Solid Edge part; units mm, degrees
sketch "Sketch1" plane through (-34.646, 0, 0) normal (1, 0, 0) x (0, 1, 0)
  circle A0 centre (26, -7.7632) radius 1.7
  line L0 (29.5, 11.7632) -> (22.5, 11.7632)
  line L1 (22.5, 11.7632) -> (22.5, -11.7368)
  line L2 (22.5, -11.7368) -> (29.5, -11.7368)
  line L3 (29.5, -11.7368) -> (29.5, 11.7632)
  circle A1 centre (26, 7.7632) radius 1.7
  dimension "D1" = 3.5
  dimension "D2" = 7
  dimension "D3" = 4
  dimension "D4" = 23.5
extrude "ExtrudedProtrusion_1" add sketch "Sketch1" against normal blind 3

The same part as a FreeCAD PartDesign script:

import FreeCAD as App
import Part
import Sketcher
from FreeCAD import Vector
Q = App.Units.Quantity

doc = App.newDocument("Part")
body = doc.addObject("PartDesign::Body", "Body")

# Sketch on YZ plane
sketch1 = body.newObject("Sketcher::SketchObject", "Sketch")
sketch1.AttachmentSupport = (doc.getObject("YZ_Plane"), [""])
sketch1.MapMode = "FlatFace"
sketch1.AttachmentOffset = App.Placement(Vector(0, 0, -34.646), App.Rotation())
sketch1.addGeometry([
    Part.LineSegment(Vector(29.5, -11.7, 0), Vector(29.5, 11.8, 0)),  # 0
    Part.LineSegment(Vector(29.5, 11.8, 0), Vector(22.5, 11.8, 0)),  # 1
    Part.LineSegment(Vector(22.5, 11.8, 0), Vector(22.5, -11.7, 0)),  # 2
    Part.LineSegment(Vector(22.5, -11.7, 0), Vector(29.5, -11.7, 0)),  # 3
    Part.Circle(Vector(26, -7.8, 0), Vector(0, 0, 1), 1.7),  # 4
    Part.Circle(Vector(26, 7.8, 0), Vector(0, 0, 1), 1.7),  # 5
], False)
sketch1.addConstraint([
    Sketcher.Constraint("Coincident", 0, 2, 1, 1),
    Sketcher.Constraint("Coincident", 1, 2, 2, 1),
    Sketcher.Constraint("Coincident", 2, 2, 3, 1),
    Sketcher.Constraint("Coincident", 3, 2, 0, 1),
    Sketcher.Constraint("Vertical", 0),
    Sketcher.Constraint("Horizontal", 1),
    Sketcher.Constraint("Vertical", 2),
    Sketcher.Constraint("Horizontal", 3),
    Sketcher.Constraint("Equal", 4, 5),
    Sketcher.Constraint("Symmetric", 4, 3, 5, 3, -1),
    Sketcher.Constraint("Diameter", 4, Q("3.4 mm")),
    Sketcher.Constraint("DistanceX", -1, 1, 0, 2, Q("29.5 mm")),
    Sketcher.Constraint("DistanceX", 1, 2, 1, 1, Q("7 mm")),
    Sketcher.Constraint("DistanceY", 0, 1, 0, 2, Q("23.5 mm")),
    Sketcher.Constraint("DistanceX", -1, 1, 4, 3, Q("26 mm")),
    Sketcher.Constraint("DistanceY", 5, 3, 0, 2, Q("4 mm")),
    Sketcher.Constraint("DistanceY", 4, 3, -1, 1, Q("7.7632 mm")),
])
pad1 = body.newObject("PartDesign::Pad", "Pad")
pad1.Profile = sketch1
pad1.Length = 3
pad1.Reversed = True

doc.recompute()
